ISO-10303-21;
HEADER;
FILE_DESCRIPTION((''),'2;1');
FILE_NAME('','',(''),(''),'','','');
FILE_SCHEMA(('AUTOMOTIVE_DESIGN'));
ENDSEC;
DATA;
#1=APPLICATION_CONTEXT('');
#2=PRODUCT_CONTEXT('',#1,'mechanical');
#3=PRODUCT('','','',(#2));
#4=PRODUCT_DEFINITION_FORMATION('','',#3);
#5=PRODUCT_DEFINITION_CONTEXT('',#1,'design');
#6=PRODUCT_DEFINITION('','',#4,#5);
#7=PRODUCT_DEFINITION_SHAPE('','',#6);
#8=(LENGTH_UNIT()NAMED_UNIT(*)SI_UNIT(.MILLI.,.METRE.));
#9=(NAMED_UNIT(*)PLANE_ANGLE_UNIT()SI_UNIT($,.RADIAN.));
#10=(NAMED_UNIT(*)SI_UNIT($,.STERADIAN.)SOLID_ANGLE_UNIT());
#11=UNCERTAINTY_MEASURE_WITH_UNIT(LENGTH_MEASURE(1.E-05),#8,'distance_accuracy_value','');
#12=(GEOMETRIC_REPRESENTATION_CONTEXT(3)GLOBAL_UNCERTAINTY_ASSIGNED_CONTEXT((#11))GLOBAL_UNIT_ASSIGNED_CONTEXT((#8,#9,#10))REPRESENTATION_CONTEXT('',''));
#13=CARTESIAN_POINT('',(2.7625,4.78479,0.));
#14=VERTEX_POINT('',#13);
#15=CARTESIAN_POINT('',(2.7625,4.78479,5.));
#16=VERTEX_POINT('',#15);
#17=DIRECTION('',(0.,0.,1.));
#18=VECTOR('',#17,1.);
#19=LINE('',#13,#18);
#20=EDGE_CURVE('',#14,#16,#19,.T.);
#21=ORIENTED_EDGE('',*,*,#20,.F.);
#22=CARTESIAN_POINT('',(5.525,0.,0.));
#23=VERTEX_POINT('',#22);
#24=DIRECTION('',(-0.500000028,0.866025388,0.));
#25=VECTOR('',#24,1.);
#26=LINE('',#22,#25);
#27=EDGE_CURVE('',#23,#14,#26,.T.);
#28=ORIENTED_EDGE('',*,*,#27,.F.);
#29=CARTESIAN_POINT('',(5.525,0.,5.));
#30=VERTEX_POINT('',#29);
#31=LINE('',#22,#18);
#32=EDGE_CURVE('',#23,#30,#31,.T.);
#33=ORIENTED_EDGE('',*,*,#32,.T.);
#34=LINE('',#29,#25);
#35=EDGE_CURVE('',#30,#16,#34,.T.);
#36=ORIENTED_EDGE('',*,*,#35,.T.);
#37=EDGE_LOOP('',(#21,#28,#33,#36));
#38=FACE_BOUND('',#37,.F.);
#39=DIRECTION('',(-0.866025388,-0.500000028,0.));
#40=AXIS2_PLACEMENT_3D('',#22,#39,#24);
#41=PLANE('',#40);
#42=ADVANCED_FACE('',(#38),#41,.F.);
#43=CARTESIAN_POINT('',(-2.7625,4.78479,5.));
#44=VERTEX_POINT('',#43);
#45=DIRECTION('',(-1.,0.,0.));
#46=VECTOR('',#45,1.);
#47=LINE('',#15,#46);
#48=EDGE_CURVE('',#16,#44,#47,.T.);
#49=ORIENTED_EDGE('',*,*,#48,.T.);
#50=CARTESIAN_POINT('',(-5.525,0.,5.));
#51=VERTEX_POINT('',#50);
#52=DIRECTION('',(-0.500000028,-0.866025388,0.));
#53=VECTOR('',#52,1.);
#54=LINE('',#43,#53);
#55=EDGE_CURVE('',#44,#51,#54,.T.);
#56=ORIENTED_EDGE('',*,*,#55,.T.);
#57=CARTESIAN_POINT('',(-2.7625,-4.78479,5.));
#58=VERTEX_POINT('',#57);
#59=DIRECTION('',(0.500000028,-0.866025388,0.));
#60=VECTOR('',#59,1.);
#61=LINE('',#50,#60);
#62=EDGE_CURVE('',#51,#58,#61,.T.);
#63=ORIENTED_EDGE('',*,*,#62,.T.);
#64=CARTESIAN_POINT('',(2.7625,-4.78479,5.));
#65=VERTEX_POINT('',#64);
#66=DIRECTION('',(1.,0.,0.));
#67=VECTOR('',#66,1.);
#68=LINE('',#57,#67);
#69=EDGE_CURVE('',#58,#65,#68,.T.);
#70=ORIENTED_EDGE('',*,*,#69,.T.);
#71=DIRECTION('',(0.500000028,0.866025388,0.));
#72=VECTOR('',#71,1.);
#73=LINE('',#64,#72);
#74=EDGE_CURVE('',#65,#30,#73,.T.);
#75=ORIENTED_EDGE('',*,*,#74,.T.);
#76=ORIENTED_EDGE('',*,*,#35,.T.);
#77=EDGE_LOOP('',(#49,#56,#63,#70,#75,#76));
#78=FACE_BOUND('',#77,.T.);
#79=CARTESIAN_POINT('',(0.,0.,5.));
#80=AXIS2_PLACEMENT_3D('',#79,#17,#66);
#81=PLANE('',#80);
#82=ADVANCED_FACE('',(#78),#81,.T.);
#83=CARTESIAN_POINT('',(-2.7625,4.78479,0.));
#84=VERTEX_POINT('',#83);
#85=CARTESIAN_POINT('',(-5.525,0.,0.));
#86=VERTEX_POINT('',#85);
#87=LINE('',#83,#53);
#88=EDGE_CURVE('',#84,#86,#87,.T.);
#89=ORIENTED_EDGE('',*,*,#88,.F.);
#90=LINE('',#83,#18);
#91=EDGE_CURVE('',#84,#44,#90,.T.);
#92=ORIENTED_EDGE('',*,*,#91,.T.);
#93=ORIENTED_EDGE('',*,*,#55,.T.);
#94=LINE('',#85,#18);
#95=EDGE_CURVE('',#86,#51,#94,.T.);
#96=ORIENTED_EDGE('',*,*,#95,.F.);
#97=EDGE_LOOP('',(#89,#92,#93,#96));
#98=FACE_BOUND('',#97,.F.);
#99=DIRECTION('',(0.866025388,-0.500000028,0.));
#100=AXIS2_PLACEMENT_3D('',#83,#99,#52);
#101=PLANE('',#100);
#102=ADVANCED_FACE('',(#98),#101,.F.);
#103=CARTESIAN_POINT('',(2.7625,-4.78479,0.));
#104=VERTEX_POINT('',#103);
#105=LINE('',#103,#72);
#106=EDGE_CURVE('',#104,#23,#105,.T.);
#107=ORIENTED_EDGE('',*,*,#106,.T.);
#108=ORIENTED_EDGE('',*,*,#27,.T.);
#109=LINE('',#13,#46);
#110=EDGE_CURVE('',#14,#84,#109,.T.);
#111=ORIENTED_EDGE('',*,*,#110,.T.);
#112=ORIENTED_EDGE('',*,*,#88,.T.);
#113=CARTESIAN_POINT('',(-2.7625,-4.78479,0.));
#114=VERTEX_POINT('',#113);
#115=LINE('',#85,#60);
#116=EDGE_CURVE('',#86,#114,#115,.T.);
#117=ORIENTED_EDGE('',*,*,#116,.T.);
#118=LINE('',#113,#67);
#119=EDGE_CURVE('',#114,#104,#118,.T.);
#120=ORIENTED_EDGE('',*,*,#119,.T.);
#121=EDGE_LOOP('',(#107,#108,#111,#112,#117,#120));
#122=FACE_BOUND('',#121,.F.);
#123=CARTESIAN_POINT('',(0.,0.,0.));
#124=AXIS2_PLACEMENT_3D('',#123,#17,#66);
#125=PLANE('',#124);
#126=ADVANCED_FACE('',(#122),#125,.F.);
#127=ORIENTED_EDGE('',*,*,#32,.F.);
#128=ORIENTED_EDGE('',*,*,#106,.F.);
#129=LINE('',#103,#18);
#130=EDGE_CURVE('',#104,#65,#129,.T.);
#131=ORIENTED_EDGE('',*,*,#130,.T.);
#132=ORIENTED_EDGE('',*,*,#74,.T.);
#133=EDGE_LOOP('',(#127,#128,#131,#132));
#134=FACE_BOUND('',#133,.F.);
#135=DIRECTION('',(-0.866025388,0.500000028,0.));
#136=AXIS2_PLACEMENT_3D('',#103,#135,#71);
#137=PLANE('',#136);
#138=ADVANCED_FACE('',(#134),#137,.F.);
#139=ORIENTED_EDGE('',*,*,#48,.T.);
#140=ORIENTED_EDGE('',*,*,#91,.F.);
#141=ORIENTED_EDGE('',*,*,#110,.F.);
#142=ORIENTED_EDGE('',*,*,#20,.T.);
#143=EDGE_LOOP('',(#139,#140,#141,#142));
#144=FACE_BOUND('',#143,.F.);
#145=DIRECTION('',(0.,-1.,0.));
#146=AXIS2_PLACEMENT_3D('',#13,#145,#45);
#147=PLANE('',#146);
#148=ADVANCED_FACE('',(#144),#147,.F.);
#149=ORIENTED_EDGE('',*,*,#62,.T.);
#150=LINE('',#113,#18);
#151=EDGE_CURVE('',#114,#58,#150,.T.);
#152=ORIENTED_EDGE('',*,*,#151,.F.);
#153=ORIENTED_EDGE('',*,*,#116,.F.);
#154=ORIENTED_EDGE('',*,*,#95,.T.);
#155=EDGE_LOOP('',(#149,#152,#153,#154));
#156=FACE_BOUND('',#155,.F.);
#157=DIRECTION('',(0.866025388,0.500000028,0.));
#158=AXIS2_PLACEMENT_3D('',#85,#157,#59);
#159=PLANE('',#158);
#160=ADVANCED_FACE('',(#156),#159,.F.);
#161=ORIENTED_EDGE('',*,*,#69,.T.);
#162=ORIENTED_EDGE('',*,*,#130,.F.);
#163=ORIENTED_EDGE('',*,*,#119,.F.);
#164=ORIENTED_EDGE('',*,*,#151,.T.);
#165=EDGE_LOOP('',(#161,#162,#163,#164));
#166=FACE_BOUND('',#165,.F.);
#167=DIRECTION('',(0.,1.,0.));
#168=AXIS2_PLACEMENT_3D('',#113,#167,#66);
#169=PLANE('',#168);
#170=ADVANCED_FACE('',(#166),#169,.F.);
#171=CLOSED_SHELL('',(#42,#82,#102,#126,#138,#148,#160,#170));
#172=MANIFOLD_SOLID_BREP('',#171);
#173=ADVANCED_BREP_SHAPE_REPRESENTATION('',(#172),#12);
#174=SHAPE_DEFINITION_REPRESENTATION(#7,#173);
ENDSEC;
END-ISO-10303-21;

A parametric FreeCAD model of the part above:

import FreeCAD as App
import Part
import Sketcher
from FreeCAD import Vector
Q = App.Units.Quantity

doc = App.newDocument("Part")
params = doc.addObject("Spreadsheet::Sheet", "Params")
for row, (alias, value) in enumerate([
    ("pad1_length", "5 mm"),
], start=1):
    params.set(f"A{row}", alias)
    params.set(f"B{row}", "=" + value)
    params.setAlias(f"B{row}", alias)

body = doc.addObject("PartDesign::Body", "Body")

sketch1 = body.newObject("Sketcher::SketchObject", "Sketch")
sketch1.AttachmentSupport = (doc.getObject("XY_Plane"), [""])
sketch1.MapMode = "FlatFace"
sketch1.addGeometry([
    Part.LineSegment(Vector(-6, 0, 0), Vector(-3, -5, 0)),
    Part.LineSegment(Vector(-3, -5, 0), Vector(3, -5, 0)),
    Part.LineSegment(Vector(3, -5, 0), Vector(6, 0, 0)),
    Part.LineSegment(Vector(6, 0, 0), Vector(3, 5, 0)),
    Part.LineSegment(Vector(3, 5, 0), Vector(-3, 5, 0)),
    Part.LineSegment(Vector(-3, 5, 0), Vector(-6, 0, 0)),
], False)
sketch1.addConstraint([
    Sketcher.Constraint("Coincident", 0, 2, 1, 1),
    Sketcher.Constraint("Coincident", 1, 2, 2, 1),
    Sketcher.Constraint("Coincident", 2, 2, 3, 1),
    Sketcher.Constraint("Coincident", 3, 2, 4, 1),
    Sketcher.Constraint("Coincident", 4, 2, 5, 1),
    Sketcher.Constraint("Coincident", 5, 2, 0, 1),
    Sketcher.Constraint("Horizontal", 1),
    Sketcher.Constraint("Horizontal", 4),
    Sketcher.Constraint("Symmetric", 0, 2, 3, 2, -1, 1),
    Sketcher.Constraint("Symmetric", 2, 2, 5, 2, -1, 1),
    Sketcher.Constraint("PointOnObject", 2, 2, -1),
    Sketcher.Constraint("Parallel", 2, 5),
    Sketcher.Constraint("Vertical", 1, 2, 3, 2),
    Sketcher.Constraint("Angle", 0, Q("-59.999998 deg")),
    Sketcher.Constraint("DistanceX", 1, 1, 1, 2, Q("5.525 mm")),
    Sketcher.Constraint("DistanceX", 5, 2, 2, 2, Q("11.05 mm")),
])
pad1 = body.newObject("PartDesign::Pad", "Pad")
pad1.Profile = sketch1
pad1.setExpression("Length", "Params.pad1_length")

doc.recompute()
